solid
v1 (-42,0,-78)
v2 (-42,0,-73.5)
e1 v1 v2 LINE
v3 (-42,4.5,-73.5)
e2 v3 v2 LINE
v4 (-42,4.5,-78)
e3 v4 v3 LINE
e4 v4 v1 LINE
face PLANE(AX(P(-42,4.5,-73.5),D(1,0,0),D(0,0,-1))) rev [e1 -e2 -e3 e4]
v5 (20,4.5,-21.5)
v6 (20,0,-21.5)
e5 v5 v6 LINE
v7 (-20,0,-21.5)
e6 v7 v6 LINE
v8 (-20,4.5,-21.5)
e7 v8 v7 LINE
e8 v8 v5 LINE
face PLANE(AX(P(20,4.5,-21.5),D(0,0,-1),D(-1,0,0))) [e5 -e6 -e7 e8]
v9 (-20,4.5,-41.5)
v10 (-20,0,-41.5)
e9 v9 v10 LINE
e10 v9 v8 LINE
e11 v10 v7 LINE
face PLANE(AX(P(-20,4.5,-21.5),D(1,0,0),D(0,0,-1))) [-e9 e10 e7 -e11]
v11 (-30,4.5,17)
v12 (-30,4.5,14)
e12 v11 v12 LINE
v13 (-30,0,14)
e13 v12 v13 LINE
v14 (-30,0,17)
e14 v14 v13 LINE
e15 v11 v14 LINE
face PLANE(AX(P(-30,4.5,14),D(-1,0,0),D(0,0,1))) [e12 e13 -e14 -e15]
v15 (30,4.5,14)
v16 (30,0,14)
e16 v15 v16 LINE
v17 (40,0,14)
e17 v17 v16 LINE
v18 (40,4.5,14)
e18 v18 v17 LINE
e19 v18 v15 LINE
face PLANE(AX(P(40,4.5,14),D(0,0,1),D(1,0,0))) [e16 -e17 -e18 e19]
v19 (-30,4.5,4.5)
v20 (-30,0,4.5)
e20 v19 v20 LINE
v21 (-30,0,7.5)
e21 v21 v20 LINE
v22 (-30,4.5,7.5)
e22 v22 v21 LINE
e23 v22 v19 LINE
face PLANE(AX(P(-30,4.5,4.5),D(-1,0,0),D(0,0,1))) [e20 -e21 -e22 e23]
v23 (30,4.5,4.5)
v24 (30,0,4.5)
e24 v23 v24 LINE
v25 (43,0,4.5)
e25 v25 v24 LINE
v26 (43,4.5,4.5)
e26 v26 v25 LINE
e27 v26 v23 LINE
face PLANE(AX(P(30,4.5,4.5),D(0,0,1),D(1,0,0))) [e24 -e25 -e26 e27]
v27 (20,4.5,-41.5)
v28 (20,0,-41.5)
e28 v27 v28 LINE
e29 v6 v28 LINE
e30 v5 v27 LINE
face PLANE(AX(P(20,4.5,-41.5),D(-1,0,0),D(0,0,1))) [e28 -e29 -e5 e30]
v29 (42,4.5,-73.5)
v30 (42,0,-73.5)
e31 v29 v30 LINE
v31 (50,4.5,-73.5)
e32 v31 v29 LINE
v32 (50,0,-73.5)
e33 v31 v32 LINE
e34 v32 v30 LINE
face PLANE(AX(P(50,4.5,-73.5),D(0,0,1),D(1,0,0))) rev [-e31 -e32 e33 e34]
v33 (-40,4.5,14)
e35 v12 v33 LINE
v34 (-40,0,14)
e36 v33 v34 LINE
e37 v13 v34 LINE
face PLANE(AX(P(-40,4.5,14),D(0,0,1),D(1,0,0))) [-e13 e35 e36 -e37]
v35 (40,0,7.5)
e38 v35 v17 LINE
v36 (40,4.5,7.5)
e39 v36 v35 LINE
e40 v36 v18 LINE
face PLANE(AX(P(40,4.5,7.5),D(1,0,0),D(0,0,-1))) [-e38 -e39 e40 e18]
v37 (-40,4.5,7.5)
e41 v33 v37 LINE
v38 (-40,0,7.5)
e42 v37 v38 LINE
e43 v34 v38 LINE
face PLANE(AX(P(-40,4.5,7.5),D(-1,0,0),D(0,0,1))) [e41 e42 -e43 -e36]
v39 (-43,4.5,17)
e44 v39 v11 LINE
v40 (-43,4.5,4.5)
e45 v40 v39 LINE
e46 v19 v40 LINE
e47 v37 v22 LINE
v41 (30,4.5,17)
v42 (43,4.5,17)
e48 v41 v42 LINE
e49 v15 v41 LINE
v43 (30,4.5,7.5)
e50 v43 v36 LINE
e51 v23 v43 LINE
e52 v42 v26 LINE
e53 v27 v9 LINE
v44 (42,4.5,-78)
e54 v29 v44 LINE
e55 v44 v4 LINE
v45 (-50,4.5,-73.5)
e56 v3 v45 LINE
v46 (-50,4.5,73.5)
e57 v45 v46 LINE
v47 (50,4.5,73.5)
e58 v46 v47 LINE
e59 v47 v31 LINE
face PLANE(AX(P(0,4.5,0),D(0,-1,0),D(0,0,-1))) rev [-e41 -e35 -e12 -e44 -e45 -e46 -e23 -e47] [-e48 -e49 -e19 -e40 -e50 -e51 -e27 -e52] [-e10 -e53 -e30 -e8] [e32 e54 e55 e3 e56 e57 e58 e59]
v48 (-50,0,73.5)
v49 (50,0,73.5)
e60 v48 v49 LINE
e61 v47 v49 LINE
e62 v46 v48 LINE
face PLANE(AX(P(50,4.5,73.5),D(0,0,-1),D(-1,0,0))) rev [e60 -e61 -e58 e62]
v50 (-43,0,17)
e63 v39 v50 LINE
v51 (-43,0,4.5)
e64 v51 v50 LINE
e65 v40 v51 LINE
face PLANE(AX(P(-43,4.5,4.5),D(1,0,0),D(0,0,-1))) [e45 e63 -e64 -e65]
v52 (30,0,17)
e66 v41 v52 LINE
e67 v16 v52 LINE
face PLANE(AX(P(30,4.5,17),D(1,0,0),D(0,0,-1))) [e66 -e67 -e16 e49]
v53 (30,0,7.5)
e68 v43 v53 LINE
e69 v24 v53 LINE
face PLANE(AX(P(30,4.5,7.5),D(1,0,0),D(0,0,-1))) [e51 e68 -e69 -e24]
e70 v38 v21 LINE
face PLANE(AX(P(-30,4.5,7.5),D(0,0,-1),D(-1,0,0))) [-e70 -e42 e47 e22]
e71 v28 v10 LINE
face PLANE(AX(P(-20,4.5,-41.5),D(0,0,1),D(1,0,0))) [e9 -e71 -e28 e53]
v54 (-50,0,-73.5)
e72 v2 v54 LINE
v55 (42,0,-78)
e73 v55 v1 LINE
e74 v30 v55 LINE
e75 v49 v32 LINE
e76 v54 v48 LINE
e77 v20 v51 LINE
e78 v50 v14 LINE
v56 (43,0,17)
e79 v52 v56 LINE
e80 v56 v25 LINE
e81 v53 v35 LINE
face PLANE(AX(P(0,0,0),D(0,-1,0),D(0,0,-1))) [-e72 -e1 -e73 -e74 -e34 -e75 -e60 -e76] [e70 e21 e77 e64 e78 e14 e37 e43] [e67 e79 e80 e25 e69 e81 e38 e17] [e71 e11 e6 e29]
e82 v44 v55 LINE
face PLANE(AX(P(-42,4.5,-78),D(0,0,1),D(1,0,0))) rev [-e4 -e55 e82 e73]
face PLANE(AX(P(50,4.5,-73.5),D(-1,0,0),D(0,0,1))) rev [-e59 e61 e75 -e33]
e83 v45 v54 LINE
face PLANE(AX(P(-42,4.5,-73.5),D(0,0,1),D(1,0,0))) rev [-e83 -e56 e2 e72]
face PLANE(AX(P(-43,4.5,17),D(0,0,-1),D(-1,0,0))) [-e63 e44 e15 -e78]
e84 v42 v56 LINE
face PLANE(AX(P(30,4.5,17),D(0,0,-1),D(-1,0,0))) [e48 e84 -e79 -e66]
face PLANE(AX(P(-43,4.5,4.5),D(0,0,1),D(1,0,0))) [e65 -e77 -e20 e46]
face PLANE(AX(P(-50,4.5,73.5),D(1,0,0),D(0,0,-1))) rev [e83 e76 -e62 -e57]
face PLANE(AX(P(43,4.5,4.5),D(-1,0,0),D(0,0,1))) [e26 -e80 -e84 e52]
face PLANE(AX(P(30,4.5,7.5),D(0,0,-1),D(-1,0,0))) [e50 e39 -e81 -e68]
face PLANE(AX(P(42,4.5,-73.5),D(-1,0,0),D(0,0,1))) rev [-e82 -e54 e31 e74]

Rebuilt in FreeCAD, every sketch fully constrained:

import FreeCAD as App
import Part
import Sketcher


def add_polygon(sketch, points):
    """Adds a closed chain of lines whose ends are joined by coincident constraints."""
    first, n = sketch.GeometryCount, len(points)
    for a, b in zip(points, points[1:] + points[:1]):
        sketch.addGeometry(Part.LineSegment(App.Vector(*a, 0), App.Vector(*b, 0)), False)
    for i in range(n):
        sketch.addConstraint(Sketcher.Constraint("Coincident", first + i, 2, first + (i + 1) % n, 1))

doc = App.newDocument("Part")
params = doc.addObject("Spreadsheet::Sheet", "Params")
for row, (alias, value) in enumerate([
    ("sketch1_width", "8 mm"),
    ("sketch1_width2", "100 mm"),
    ("sketch1_width3", "10 mm"),
    ("sketch1_width4", "13 mm"),
    ("sketch1_width5", "40 mm"),
    ("pad1_length", "4.5 mm"),
], start=1):
    params.set(f"A{row}", alias)
    params.set(f"B{row}", "=" + value)
    params.setAlias(f"B{row}", alias)

body = doc.addObject("PartDesign::Body", "Body")

sketch1 = body.newObject("Sketcher::SketchObject", "Sketch")
sketch1.AttachmentSupport = (doc.getObject("XZ_Plane"), [""])
sketch1.MapMode = "FlatFace"
add_polygon(sketch1, [(-42, -78), (-42, -73.5), (-50, -73.5), (-50, 73.5), (50, 73.5), (50, -73.5), (42, -73.5), (42, -78)])
add_polygon(sketch1, [(30, 17), (30, 14), (40, 14), (40, 7.5), (30, 7.5), (30, 4.5), (43, 4.5), (43, 17)])
add_polygon(sketch1, [(-43, 4.5), (-30, 4.5), (-30, 7.5), (-40, 7.5), (-40, 14), (-30, 14), (-30, 17), (-43, 17)])
add_polygon(sketch1, [(-20, -21.5), (-20, -41.5), (20, -41.5), (20, -21.5)])
sketch1.addConstraint([
    Sketcher.Constraint("Vertical", 0),
    Sketcher.Constraint("Horizontal", 1),
    Sketcher.Constraint("Vertical", 2),
    Sketcher.Constraint("Horizontal", 3),
    Sketcher.Constraint("Vertical", 4),
    Sketcher.Constraint("Horizontal", 5),
    Sketcher.Constraint("Vertical", 6),
    Sketcher.Constraint("Horizontal", 7),
    Sketcher.Constraint("Vertical", 8),
    Sketcher.Constraint("Horizontal", 9),
    Sketcher.Constraint("Vertical", 10),
    Sketcher.Constraint("Horizontal", 11),
    Sketcher.Constraint("Vertical", 12),
    Sketcher.Constraint("Horizontal", 13),
    Sketcher.Constraint("Vertical", 14),
    Sketcher.Constraint("Horizontal", 15),
    Sketcher.Constraint("Horizontal", 16),
    Sketcher.Constraint("Vertical", 17),
    Sketcher.Constraint("Horizontal", 18),
    Sketcher.Constraint("Vertical", 19),
    Sketcher.Constraint("Horizontal", 20),
    Sketcher.Constraint("Vertical", 21),
    Sketcher.Constraint("Horizontal", 22),
    Sketcher.Constraint("Vertical", 23),
    Sketcher.Constraint("Vertical", 24),
    Sketcher.Constraint("Horizontal", 25),
    Sketcher.Constraint("Vertical", 26),
    Sketcher.Constraint("Horizontal", 27),
    Sketcher.Constraint("Symmetric", 1, 2, 3, 2, -1, 1),
    Sketcher.Constraint("Symmetric", 0, 2, 5, 2, -2),
    Sketcher.Constraint("Symmetric", 12, 2, 16, 2, -2),
    Sketcher.Constraint("Symmetric", 10, 2, 18, 2, -2),
    Sketcher.Constraint("Symmetric", 8, 2, 20, 2, -2),
    Sketcher.Constraint("Symmetric", 14, 2, 22, 2, -2),
    Sketcher.Constraint("Vertical", 8, 2, 11, 2),
    Sketcher.Constraint("Equal", 8, 12),
    Sketcher.Constraint("DistanceX", 1, 2, 1, 1, 8.0),
    Sketcher.Constraint("DistanceX", 3, 1, 3, 2, 100.0),
    Sketcher.Constraint("DistanceX", 9, 1, 9, 2, 10.0),
    Sketcher.Constraint("DistanceX", 13, 1, 13, 2, 13.0),
    Sketcher.Constraint("DistanceX", 25, 1, 25, 2, 40.0),
    Sketcher.Constraint("DistanceY", 2, 1, 2, 2, 147.0),
    Sketcher.Constraint("DistanceY", 8, 2, 8, 1, 3.0),
    Sketcher.Constraint("DistanceY", 24, 2, 24, 1, 20.0),
    Sketcher.Constraint("DistanceY", 0, 1, 0, 2, 4.5),
    Sketcher.Constraint("DistanceY", 10, 2, 10, 1, 6.5),
    Sketcher.Constraint("DistanceX", -1, 1, 8, 2, 30.0),
    Sketcher.Constraint("DistanceY", -1, 1, 8, 2, 14.0),
    Sketcher.Constraint("DistanceX", 24, 2, -1, 1, 20.0),
    Sketcher.Constraint("DistanceY", 0, 2, 24, 2, 32.0),
])
sketch1.setExpression("Constraints[64]", "Params.sketch1_width")
sketch1.setExpression("Constraints[65]", "Params.sketch1_width2")
sketch1.setExpression("Constraints[66]", "Params.sketch1_width3")
sketch1.setExpression("Constraints[67]", "Params.sketch1_width4")
sketch1.setExpression("Constraints[68]", "Params.sketch1_width5")
pad1 = body.newObject("PartDesign::Pad", "Pad")
pad1.Profile = sketch1
pad1.setExpression("Length", "Params.pad1_length")
pad1.Reversed = True

doc.recompute()
